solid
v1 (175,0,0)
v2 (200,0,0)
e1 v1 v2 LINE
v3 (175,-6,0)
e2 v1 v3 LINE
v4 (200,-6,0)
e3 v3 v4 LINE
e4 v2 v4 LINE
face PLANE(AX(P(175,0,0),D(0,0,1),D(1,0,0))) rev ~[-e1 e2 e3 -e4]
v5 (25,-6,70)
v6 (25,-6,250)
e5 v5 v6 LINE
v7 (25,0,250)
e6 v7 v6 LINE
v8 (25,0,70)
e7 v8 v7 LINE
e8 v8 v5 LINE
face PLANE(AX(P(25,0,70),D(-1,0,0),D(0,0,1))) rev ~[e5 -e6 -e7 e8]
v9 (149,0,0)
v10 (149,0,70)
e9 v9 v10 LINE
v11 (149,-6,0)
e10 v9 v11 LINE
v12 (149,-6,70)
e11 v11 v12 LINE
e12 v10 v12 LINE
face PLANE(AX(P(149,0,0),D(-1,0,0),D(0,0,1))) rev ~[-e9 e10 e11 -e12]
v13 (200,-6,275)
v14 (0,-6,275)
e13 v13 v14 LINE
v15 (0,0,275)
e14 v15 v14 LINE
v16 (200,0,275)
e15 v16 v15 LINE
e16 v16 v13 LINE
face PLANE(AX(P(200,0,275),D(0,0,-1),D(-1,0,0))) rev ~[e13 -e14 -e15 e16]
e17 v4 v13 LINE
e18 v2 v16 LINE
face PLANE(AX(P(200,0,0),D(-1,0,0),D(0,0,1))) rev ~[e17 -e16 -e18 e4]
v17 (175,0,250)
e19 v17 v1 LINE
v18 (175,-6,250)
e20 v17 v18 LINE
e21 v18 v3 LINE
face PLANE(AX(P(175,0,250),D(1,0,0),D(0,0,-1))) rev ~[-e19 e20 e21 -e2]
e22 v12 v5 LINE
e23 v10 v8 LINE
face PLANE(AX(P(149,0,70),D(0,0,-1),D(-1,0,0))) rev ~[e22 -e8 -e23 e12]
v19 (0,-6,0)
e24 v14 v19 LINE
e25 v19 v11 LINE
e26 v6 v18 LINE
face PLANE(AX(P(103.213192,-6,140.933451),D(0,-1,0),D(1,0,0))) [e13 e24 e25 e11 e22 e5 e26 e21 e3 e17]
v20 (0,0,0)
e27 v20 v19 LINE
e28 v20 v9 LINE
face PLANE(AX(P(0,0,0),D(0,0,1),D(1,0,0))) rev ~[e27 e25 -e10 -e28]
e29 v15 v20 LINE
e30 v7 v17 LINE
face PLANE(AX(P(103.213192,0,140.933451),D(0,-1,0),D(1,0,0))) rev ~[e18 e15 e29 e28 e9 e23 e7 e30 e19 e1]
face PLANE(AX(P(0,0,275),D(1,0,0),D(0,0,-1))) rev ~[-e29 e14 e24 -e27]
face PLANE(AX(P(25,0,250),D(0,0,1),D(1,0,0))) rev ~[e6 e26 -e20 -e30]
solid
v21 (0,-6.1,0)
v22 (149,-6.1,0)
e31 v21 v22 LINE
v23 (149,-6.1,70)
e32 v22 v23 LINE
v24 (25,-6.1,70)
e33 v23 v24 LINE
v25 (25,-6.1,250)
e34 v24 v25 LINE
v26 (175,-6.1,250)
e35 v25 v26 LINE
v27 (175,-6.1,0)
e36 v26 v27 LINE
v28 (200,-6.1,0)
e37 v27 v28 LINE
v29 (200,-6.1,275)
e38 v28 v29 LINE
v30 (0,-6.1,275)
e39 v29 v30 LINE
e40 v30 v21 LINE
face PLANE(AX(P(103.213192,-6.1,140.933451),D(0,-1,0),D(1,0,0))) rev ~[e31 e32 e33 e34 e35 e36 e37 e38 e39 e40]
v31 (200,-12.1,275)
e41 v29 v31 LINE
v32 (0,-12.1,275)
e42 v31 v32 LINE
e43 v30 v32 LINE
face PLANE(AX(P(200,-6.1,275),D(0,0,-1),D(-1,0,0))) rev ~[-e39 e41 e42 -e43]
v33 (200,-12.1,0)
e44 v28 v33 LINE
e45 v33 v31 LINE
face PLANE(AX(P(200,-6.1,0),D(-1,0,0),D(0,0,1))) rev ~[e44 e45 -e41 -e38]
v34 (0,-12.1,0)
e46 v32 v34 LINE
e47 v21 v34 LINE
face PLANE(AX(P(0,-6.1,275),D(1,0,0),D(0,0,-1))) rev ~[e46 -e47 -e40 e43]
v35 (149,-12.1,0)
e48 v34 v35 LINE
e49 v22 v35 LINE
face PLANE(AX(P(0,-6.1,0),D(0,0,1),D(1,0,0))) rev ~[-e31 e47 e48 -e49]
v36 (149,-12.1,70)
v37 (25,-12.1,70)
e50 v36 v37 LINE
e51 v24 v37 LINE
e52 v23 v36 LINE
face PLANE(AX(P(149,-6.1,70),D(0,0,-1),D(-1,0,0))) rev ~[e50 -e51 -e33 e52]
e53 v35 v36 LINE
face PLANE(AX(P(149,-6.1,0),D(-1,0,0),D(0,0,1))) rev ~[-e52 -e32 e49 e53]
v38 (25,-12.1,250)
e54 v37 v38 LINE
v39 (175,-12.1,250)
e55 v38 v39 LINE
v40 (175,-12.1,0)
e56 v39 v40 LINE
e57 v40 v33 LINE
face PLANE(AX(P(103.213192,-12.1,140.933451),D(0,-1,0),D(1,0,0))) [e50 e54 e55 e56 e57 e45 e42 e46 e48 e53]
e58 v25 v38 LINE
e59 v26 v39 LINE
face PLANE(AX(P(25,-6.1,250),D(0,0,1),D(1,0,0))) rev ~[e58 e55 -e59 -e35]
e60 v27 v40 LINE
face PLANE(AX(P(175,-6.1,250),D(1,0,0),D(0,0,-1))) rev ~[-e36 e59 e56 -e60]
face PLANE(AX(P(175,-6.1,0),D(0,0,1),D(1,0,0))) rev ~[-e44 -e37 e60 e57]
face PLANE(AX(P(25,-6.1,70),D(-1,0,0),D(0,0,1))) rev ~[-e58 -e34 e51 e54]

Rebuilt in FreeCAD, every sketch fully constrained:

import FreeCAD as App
import Part
import Sketcher

V = App.Vector


def add_polygon(sketch, points):
    """Adds a closed chain of lines whose ends are joined by coincident constraints."""
    first, n = sketch.GeometryCount, len(points)
    for a, b in zip(points, points[1:] + points[:1]):
        sketch.addGeometry(Part.LineSegment(App.Vector(*a, 0), App.Vector(*b, 0)), False)
    for i in range(n):
        sketch.addConstraint(Sketcher.Constraint("Coincident", first + i, 2, first + (i + 1) % n, 1))

doc = App.newDocument("Part")
body = doc.addObject("PartDesign::Body", "Body")

# Sketch on XZ plane
sketch1 = body.newObject("Sketcher::SketchObject", "Sketch")
sketch1.AttachmentSupport = (doc.getObject("XZ_Plane"), [""])
sketch1.MapMode = "FlatFace"
add_polygon(sketch1, [(0, 275), (0, 0), (149, 0), (149, 70), (25, 70), (25, 250), (175, 250), (175, 0), (200, 0), (200, 275)])  # lines 0-9
sketch1.addConstraint([
    Sketcher.Constraint("Vertical", 0),
    Sketcher.Constraint("Horizontal", 1),
    Sketcher.Constraint("Vertical", 2),
    Sketcher.Constraint("Horizontal", 3),
    Sketcher.Constraint("Vertical", 4),
    Sketcher.Constraint("Horizontal", 5),
    Sketcher.Constraint("Vertical", 6),
    Sketcher.Constraint("Horizontal", 7),
    Sketcher.Constraint("Vertical", 8),
    Sketcher.Constraint("Horizontal", 9),
    Sketcher.Constraint("Coincident", 0, 2, -1, 1),
    Sketcher.Constraint("PointOnObject", 6, 2, -1),
    Sketcher.Constraint("DistanceX", 1, 1, 1, 2, 149.0),
    Sketcher.Constraint("DistanceX", 3, 2, 3, 1, 124.0),
    Sketcher.Constraint("DistanceX", 5, 1, 5, 2, 150.0),
    Sketcher.Constraint("DistanceX", 7, 1, 7, 2, 25.0),
    Sketcher.Constraint("DistanceY", 0, 2, 0, 1, 275.0),
    Sketcher.Constraint("DistanceY", 2, 1, 2, 2, 70.0),
    Sketcher.Constraint("DistanceY", 4, 1, 4, 2, 180.0),
])
pad1 = body.newObject("PartDesign::Pad", "Pad")
pad1.Profile = sketch1
pad1.Length = 6
body2 = doc.addObject("PartDesign::Body", "Body001")

# Sketch on XZ plane
sketch2 = body2.newObject("Sketcher::SketchObject", "Sketch001")
sketch2.AttachmentSupport = (doc.getObject("XZ_Plane001"), [""])
sketch2.MapMode = "FlatFace"
sketch2.AttachmentOffset = App.Placement(V(0, 0, 6.1), App.Rotation())
add_polygon(sketch2, [(0, 275), (0, 0), (149, 0), (149, 70), (25, 70), (25, 250), (175, 250), (175, 0), (200, 0), (200, 275)])  # lines 0-9
sketch2.addConstraint([
    Sketcher.Constraint("Vertical", 0),
    Sketcher.Constraint("Horizontal", 1),
    Sketcher.Constraint("Vertical", 2),
    Sketcher.Constraint("Horizontal", 3),
    Sketcher.Constraint("Vertical", 4),
    Sketcher.Constraint("Horizontal", 5),
    Sketcher.Constraint("Vertical", 6),
    Sketcher.Constraint("Horizontal", 7),
    Sketcher.Constraint("Vertical", 8),
    Sketcher.Constraint("Horizontal", 9),
    Sketcher.Constraint("Coincident", 0, 2, -1, 1),
    Sketcher.Constraint("PointOnObject", 6, 2, -1),
    Sketcher.Constraint("DistanceX", 1, 1, 1, 2, 149.0),
    Sketcher.Constraint("DistanceX", 3, 2, 3, 1, 124.0),
    Sketcher.Constraint("DistanceX", 5, 1, 5, 2, 150.0),
    Sketcher.Constraint("DistanceX", 7, 1, 7, 2, 25.0),
    Sketcher.Constraint("DistanceY", 0, 2, 0, 1, 275.0),
    Sketcher.Constraint("DistanceY", 2, 1, 2, 2, 70.0),
    Sketcher.Constraint("DistanceY", 4, 1, 4, 2, 180.0),
])
pad2 = body2.newObject("PartDesign::Pad", "Pad001")
pad2.Profile = sketch2
pad2.Length = 6

doc.recompute()
